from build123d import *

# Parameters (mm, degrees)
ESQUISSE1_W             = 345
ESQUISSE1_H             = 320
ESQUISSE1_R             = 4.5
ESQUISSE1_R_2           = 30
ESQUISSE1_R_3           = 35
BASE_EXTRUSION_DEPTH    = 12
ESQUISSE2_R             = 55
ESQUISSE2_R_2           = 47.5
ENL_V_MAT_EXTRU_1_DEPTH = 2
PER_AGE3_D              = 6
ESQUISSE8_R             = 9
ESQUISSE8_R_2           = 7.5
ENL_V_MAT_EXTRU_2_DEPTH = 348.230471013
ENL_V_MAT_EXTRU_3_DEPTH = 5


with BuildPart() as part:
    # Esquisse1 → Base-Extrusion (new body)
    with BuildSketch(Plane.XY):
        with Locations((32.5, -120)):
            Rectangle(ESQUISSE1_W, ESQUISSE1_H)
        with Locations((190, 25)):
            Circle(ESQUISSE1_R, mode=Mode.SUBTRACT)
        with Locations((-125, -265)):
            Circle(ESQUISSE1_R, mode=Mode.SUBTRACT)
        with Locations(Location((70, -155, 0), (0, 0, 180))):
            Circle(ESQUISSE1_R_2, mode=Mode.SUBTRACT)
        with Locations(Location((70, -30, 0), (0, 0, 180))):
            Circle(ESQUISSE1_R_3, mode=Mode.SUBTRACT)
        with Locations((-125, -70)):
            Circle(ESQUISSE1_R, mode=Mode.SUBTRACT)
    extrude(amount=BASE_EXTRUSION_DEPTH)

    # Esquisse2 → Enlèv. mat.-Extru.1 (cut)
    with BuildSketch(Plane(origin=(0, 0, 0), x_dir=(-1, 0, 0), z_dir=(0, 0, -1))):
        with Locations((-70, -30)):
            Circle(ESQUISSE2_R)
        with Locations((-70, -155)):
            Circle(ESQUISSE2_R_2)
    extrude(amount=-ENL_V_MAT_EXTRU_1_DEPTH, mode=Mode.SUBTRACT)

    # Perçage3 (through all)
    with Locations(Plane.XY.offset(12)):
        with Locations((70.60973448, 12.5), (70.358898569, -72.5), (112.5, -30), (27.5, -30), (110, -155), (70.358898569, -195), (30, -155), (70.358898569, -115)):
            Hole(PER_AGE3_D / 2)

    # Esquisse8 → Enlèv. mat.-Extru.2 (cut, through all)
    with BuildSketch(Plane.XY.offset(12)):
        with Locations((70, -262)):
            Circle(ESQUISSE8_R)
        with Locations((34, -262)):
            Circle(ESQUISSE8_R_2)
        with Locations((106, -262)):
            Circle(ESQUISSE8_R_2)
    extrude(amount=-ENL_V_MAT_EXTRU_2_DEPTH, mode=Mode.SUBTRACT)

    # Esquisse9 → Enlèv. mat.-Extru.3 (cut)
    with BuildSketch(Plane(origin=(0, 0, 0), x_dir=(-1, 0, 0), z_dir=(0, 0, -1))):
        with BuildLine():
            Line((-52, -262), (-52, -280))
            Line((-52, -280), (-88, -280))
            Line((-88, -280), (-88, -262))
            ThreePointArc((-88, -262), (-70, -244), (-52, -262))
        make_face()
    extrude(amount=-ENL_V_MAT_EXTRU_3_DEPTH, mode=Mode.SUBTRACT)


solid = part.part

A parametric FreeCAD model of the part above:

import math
import FreeCAD as App
import Part
import Sketcher
from FreeCAD import Vector

doc = App.newDocument("Part")
body = doc.addObject("PartDesign::Body", "Body")

sketch1 = doc.addObject("Sketcher::SketchObject", "Sketch")
body.addObject(sketch1)
sketch1.AttachmentSupport = (doc.XY_Plane, [""])
sketch1.MapMode = "FlatFace"
sketch1.addGeometry([
    Part.LineSegment(Vector(-140, 40, 0), Vector(-140, -280, 0)),
    Part.LineSegment(Vector(-140, -280, 0), Vector(205, -280, 0)),
    Part.LineSegment(Vector(205, -280, 0), Vector(205, 40, 0)),
    Part.LineSegment(Vector(205, 40, 0), Vector(-140, 40, 0)),
    Part.Circle(Vector(-125, -265, 0), Vector(0, 0, 1), 4.5),
    Part.Circle(Vector(70, -155, 0), Vector(0, 0, 1), 30),
    Part.Circle(Vector(-125, -70, 0), Vector(0, 0, 1), 4.5),
    Part.Circle(Vector(70, -30, 0), Vector(0, 0, 1), 35),
    Part.Circle(Vector(190, 25, 0), Vector(0, 0, 1), 4.5),
], False)
sketch1.addConstraint([
    Sketcher.Constraint("Coincident", 0, 2, 1, 1),
    Sketcher.Constraint("Coincident", 1, 2, 2, 1),
    Sketcher.Constraint("Coincident", 2, 2, 3, 1),
    Sketcher.Constraint("Coincident", 3, 2, 0, 1),
    Sketcher.Constraint("Vertical", 0),
    Sketcher.Constraint("Horizontal", 1),
    Sketcher.Constraint("Vertical", 2),
    Sketcher.Constraint("Horizontal", 3),
    Sketcher.Constraint("Equal", 4, 6),
    Sketcher.Constraint("Equal", 6, 8),
    Sketcher.Constraint("Vertical", 4, 3, 6, 3),
    Sketcher.Constraint("Vertical", 5, 3, 7, 3),
    Sketcher.Constraint("Diameter", 4, 9.0),
    Sketcher.Constraint("Diameter", 5, 60.0),
    Sketcher.Constraint("Diameter", 7, 70.0),
    Sketcher.Constraint("DistanceX", 1, 1, 1, 2, 345.0),
    Sketcher.Constraint("DistanceY", 0, 2, 0, 1, 320.0),
    Sketcher.Constraint("DistanceX", 4, 3, -1, 1, 125.0),
    Sketcher.Constraint("DistanceY", 4, 3, -1, 1, 265.0),
    Sketcher.Constraint("DistanceX", -1, 1, 5, 3, 70.0),
    Sketcher.Constraint("DistanceY", 5, 3, -1, 1, 155.0),
    Sketcher.Constraint("DistanceY", 6, 3, -1, 1, 70.0),
    Sketcher.Constraint("DistanceY", 7, 3, -1, 1, 30.0),
    Sketcher.Constraint("DistanceX", -1, 1, 8, 3, 190.0),
    Sketcher.Constraint("DistanceY", -1, 1, 8, 3, 25.0),
    Sketcher.Constraint("DistanceX", 0, 2, -1, 1, 140.0),
    Sketcher.Constraint("DistanceY", 0, 2, -1, 1, 280.0),
])
pad1 = doc.addObject("PartDesign::Pad", "Pad")
body.addObject(pad1)
pad1.Profile = sketch1
pad1.Length = 12

sketch2 = doc.addObject("Sketcher::SketchObject", "Sketch001")
body.addObject(sketch2)
sketch2.AttachmentSupport = (doc.XY_Plane, [""])
sketch2.MapMode = "FlatFace"
sketch2.addGeometry([
    Part.Circle(Vector(70, -30, 0), Vector(0, 0, 1), 55),
    Part.Circle(Vector(70, -155, 0), Vector(0, 0, 1), 48),
], False)
sketch2.addConstraint([
    Sketcher.Constraint("Vertical", 0, 3, 1, 3),
    Sketcher.Constraint("Diameter", 0, 110.0),
    Sketcher.Constraint("Diameter", 1, 95.0),
    Sketcher.Constraint("DistanceX", -1, 1, 0, 3, 70.0),
    Sketcher.Constraint("DistanceY", 0, 3, -1, 1, 30.0),
    Sketcher.Constraint("DistanceY", 1, 3, -1, 1, 155.0),
])
pocket1 = doc.addObject("PartDesign::Pocket", "Pocket")
body.addObject(pocket1)
pocket1.Profile = sketch2
pocket1.Length = 2
pocket1.Reversed = True

sketch3 = doc.addObject("Sketcher::SketchObject", "Sketch002")
body.addObject(sketch3)
sketch3.AttachmentSupport = (doc.XY_Plane, [""])
sketch3.MapMode = "FlatFace"
sketch3.AttachmentOffset = App.Placement(Vector(0, 0, 12), App.Rotation())
sketch3.addGeometry([
    Part.Circle(Vector(70.6, 12.5, 0), Vector(0, 0, 1), 3),
    Part.Circle(Vector(70.4, -72.5, 0), Vector(0, 0, 1), 3),
    Part.Circle(Vector(112.5, -30, 0), Vector(0, 0, 1), 3),
    Part.Circle(Vector(27.5, -30, 0), Vector(0, 0, 1), 3),
    Part.Circle(Vector(110, -155, 0), Vector(0, 0, 1), 3),
    Part.Circle(Vector(70.4, -195, 0), Vector(0, 0, 1), 3),
    Part.Circle(Vector(30, -155, 0), Vector(0, 0, 1), 3),
    Part.Circle(Vector(70.4, -115, 0), Vector(0, 0, 1), 3),
], False)
sketch3.addConstraint([
    Sketcher.Constraint("Equal", 0, 1),
    Sketcher.Constraint("Equal", 1, 2),
    Sketcher.Constraint("Equal", 2, 3),
    Sketcher.Constraint("Equal", 3, 4),
    Sketcher.Constraint("Equal", 4, 5),
    Sketcher.Constraint("Equal", 5, 6),
    Sketcher.Constraint("Equal", 6, 7),
    Sketcher.Constraint("Horizontal", 2, 3, 3, 3),
    Sketcher.Constraint("Horizontal", 4, 3, 6, 3),
    Sketcher.Constraint("Vertical", 1, 3, 5, 3),
    Sketcher.Constraint("Vertical", 5, 3, 7, 3),
    Sketcher.Constraint("Diameter", 0, 6.0),
    Sketcher.Constraint("DistanceY", 2, 3, -1, 1, 30.0),
    Sketcher.Constraint("DistanceX", -1, 1, 4, 3, 110.0),
    Sketcher.Constraint("DistanceY", 4, 3, -1, 1, 155.0),
    Sketcher.Constraint("DistanceY", 5, 3, -1, 1, 195.0),
    Sketcher.Constraint("DistanceX", -1, 1, 6, 3, 30.0),
    Sketcher.Constraint("DistanceY", 7, 3, -1, 1, 115.0),
    Sketcher.Constraint("DistanceY", 1, 3, 0, 3, 85.0),
    Sketcher.Constraint("DistanceX", 3, 3, 2, 3, 85.0),
    Sketcher.Constraint("DistanceY", -1, 1, 0, 3, 12.5),
    Sketcher.Constraint("DistanceX", -1, 1, 2, 3, 112.5),
    Sketcher.Constraint("DistanceX", -1, 1, 1, 3, 70.358899),
    Sketcher.Constraint("DistanceX", -1, 1, 0, 3, 70.609734),
])
doc.recompute()
hole = doc.addObject("PartDesign::Hole", "Hole")
body.addObject(hole)
hole.Profile = sketch3
hole.ThreadType = "None"
hole.Diameter = 6
hole.DepthType = "ThroughAll"

sketch4 = doc.addObject("Sketcher::SketchObject", "Sketch003")
body.addObject(sketch4)
sketch4.AttachmentSupport = (doc.XY_Plane, [""])
sketch4.MapMode = "FlatFace"
sketch4.AttachmentOffset = App.Placement(Vector(0, 0, 12), App.Rotation())
sketch4.addGeometry([
    Part.Circle(Vector(70, -262, 0), Vector(0, 0, 1), 9),
    Part.Circle(Vector(34, -262, 0), Vector(0, 0, 1), 8),
    Part.Circle(Vector(106, -262, 0), Vector(0, 0, 1), 8),
], False)
sketch4.addConstraint([
    Sketcher.Constraint("Equal", 1, 2),
    Sketcher.Constraint("Horizontal", 0, 3, 1, 3),
    Sketcher.Constraint("Horizontal", 1, 3, 2, 3),
    Sketcher.Constraint("Diameter", 0, 18.0),
    Sketcher.Constraint("Diameter", 1, 15.0),
    Sketcher.Constraint("DistanceX", -1, 1, 0, 3, 70.0),
    Sketcher.Constraint("DistanceY", 0, 3, -1, 1, 262.0),
    Sketcher.Constraint("DistanceX", -1, 1, 1, 3, 34.0),
    Sketcher.Constraint("DistanceX", -1, 1, 2, 3, 106.0),
])
pocket2 = doc.addObject("PartDesign::Pocket", "Pocket001")
body.addObject(pocket2)
pocket2.Profile = sketch4
pocket2.Type = "ThroughAll"

sketch5 = doc.addObject("Sketcher::SketchObject", "Sketch004")
body.addObject(sketch5)
sketch5.AttachmentSupport = (doc.XY_Plane, [""])
sketch5.MapMode = "FlatFace"
sketch5.addGeometry([
    Part.LineSegment(Vector(52, -280, 0), Vector(52, -262, 0)),
    Part.ArcOfCircle(Part.Circle(Vector(70, -262, 0), Vector(0, 0, 1), 18), math.radians(0), math.radians(180)),
    Part.LineSegment(Vector(88, -262, 0), Vector(88, -280, 0)),
    Part.LineSegment(Vector(88, -280, 0), Vector(52, -280, 0)),
], False)
sketch5.addConstraint([
    Sketcher.Constraint("Tangent", 0, 2, 1, 2),
    Sketcher.Constraint("Tangent", 1, 1, 2, 1),
    Sketcher.Constraint("Coincident", 2, 2, 3, 1),
    Sketcher.Constraint("Coincident", 3, 2, 0, 1),
    Sketcher.Constraint("Vertical", 0),
    Sketcher.Constraint("Vertical", 2),
    Sketcher.Constraint("Horizontal", 3),
    Sketcher.Constraint("Radius", 1, 18.0),
    Sketcher.Constraint("DistanceY", 0, 1, 0, 2, 18.0),
    Sketcher.Constraint("DistanceX", -1, 1, 1, 3, 70.0),
    Sketcher.Constraint("DistanceY", 1, 3, -1, 1, 262.0),
])
pocket3 = doc.addObject("PartDesign::Pocket", "Pocket002")
body.addObject(pocket3)
pocket3.Profile = sketch5
pocket3.Length = 5
pocket3.Reversed = True

doc.recompute()
